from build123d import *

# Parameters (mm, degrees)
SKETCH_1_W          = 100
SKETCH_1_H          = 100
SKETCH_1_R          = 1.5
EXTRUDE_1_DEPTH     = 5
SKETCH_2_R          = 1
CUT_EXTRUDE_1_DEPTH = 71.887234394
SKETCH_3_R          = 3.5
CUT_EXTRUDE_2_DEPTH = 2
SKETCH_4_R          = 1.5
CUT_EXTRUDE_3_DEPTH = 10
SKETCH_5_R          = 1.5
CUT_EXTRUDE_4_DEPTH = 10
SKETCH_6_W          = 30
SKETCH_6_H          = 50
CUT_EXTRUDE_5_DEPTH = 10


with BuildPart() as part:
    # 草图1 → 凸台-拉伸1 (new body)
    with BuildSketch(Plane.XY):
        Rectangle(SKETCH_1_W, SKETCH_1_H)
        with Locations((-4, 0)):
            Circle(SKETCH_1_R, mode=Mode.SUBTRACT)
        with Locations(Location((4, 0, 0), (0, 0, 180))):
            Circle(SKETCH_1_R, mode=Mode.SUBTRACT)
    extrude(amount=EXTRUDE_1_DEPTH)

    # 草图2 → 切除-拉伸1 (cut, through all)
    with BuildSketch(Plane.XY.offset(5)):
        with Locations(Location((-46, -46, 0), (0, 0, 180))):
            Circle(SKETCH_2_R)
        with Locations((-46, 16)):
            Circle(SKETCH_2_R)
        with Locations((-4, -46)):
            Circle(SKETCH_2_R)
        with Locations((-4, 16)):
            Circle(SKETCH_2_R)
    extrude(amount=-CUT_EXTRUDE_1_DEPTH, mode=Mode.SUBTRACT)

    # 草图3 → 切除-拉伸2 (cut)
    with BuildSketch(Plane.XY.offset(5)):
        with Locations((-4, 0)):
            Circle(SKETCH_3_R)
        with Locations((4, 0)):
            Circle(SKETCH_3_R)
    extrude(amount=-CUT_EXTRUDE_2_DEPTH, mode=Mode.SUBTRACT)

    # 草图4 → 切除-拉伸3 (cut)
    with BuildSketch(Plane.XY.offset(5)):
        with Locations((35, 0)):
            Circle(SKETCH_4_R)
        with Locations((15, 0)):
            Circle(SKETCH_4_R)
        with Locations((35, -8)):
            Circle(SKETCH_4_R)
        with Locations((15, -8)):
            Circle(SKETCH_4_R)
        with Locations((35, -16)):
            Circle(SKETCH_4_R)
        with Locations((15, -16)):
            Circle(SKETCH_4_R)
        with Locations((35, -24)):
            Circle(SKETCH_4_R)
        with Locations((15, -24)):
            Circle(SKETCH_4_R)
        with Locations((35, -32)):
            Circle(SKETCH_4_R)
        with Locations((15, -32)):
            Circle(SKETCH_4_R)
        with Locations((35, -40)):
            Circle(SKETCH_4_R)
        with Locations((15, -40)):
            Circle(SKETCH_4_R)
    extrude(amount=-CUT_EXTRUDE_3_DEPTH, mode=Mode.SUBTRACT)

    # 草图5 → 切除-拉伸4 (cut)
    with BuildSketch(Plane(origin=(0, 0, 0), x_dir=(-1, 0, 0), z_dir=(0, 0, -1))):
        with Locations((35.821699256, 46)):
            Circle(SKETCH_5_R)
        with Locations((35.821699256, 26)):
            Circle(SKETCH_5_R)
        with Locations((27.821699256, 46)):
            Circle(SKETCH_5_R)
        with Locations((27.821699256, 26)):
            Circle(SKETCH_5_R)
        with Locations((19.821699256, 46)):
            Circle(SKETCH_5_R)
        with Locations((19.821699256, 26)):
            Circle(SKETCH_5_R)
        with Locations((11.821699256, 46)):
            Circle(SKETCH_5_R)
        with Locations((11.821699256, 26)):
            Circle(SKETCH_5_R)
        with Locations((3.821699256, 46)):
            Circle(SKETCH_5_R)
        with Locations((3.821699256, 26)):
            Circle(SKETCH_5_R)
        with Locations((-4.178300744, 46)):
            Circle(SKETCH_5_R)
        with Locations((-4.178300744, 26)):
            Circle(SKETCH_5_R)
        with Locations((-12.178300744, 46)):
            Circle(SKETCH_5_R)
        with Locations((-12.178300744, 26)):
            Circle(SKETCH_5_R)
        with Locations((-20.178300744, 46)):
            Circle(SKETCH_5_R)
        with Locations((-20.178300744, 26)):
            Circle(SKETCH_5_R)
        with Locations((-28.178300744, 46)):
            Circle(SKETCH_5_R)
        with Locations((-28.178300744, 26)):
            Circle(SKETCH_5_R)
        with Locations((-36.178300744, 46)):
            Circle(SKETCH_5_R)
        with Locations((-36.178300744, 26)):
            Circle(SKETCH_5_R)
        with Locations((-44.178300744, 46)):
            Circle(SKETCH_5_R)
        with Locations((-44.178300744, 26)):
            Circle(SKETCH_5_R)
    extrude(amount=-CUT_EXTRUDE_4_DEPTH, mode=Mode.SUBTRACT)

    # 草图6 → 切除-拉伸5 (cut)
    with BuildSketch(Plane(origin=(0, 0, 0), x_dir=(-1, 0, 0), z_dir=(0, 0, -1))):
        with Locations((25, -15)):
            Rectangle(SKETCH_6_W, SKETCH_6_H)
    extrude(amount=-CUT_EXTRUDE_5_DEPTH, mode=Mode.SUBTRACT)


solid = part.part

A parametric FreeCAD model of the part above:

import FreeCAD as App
import Part
import Sketcher

V = App.Vector
Q = App.Units.Quantity


def add_polygon(sketch, points):
    """Adds a closed chain of lines whose ends are joined by coincident constraints."""
    first, n = sketch.GeometryCount, len(points)
    for a, b in zip(points, points[1:] + points[:1]):
        sketch.addGeometry(Part.LineSegment(App.Vector(*a, 0), App.Vector(*b, 0)), False)
    for i in range(n):
        sketch.addConstraint(Sketcher.Constraint("Coincident", first + i, 2, first + (i + 1) % n, 1))

doc = App.newDocument("Part")
body = doc.addObject("PartDesign::Body", "Body")

# Sketch on XY plane
sketch1 = body.newObject("Sketcher::SketchObject", "Sketch")
sketch1.AttachmentSupport = (doc.getObject("XY_Plane"), [""])
sketch1.MapMode = "FlatFace"
add_polygon(sketch1, [(-50, 50), (-50, -50), (50, -50), (50, 50)])  # lines 0-3
sketch1.addGeometry(Part.Circle(V(-4, 0, 0), V(0, 0, 1), 1.5), False)  # 4
sketch1.addGeometry(Part.Circle(V(4, 0, 0), V(0, 0, 1), 1.5), False)  # 5
sketch1.addConstraint(Sketcher.Constraint("Vertical", 0))
sketch1.addConstraint(Sketcher.Constraint("Horizontal", 1))
sketch1.addConstraint(Sketcher.Constraint("Vertical", 2))
sketch1.addConstraint(Sketcher.Constraint("Horizontal", 3))
sketch1.addConstraint(Sketcher.Constraint("Equal", 4, 5))
sketch1.addConstraint(Sketcher.Constraint("Symmetric", 4, 3, 5, 3, -1, 1))
sketch1.addConstraint(Sketcher.Constraint("Symmetric", 0, 2, 2, 2, -1, 1))
sketch1.addConstraint(Sketcher.Constraint("PointOnObject", 4, 3, -1))
sketch1.addConstraint(Sketcher.Constraint("Equal", 3, 0))
sketch1.addConstraint(Sketcher.Constraint("Diameter", 4, Q("3 mm")))
sketch1.addConstraint(Sketcher.Constraint("DistanceX", 1, 1, 1, 2, Q("100 mm")))
sketch1.addConstraint(Sketcher.Constraint("DistanceX", 4, 3, -1, 1, Q("4 mm")))
pad1 = body.newObject("PartDesign::Pad", "Pad")
pad1.Profile = sketch1
pad1.Length = 5

# Sketch on XY plane
sketch2 = body.newObject("Sketcher::SketchObject", "Sketch001")
sketch2.AttachmentSupport = (doc.getObject("XY_Plane"), [""])
sketch2.MapMode = "FlatFace"
sketch2.AttachmentOffset = App.Placement(V(0, 0, 5), App.Rotation())
sketch2.addGeometry(Part.Circle(V(-46, -46, 0), V(0, 0, 1), 1), False)
sketch2.addGeometry(Part.Circle(V(-46, 16, 0), V(0, 0, 1), 1), False)
sketch2.addGeometry(Part.Circle(V(-4, -46, 0), V(0, 0, 1), 1), False)
sketch2.addGeometry(Part.Circle(V(-4, 16, 0), V(0, 0, 1), 1), False)
sketch2.addConstraint(Sketcher.Constraint("Equal", 0, 1))
sketch2.addConstraint(Sketcher.Constraint("Equal", 1, 2))
sketch2.addConstraint(Sketcher.Constraint("Equal", 2, 3))
sketch2.addConstraint(Sketcher.Constraint("Horizontal", 0, 3, 2, 3))
sketch2.addConstraint(Sketcher.Constraint("Horizontal", 1, 3, 3, 3))
sketch2.addConstraint(Sketcher.Constraint("Vertical", 0, 3, 1, 3))
sketch2.addConstraint(Sketcher.Constraint("Vertical", 2, 3, 3, 3))
sketch2.addConstraint(Sketcher.Constraint("Diameter", 0, Q("2 mm")))
sketch2.addConstraint(Sketcher.Constraint("DistanceX", 0, 3, -1, 1, Q("46 mm")))
sketch2.addConstraint(Sketcher.Constraint("DistanceY", 0, 3, -1, 1, Q("46 mm")))
sketch2.addConstraint(Sketcher.Constraint("DistanceY", -1, 1, 1, 3, Q("16 mm")))
sketch2.addConstraint(Sketcher.Constraint("DistanceX", 2, 3, -1, 1, Q("4 mm")))
pocket1 = body.newObject("PartDesign::Pocket", "Pocket")
pocket1.Profile = sketch2
pocket1.Type = "ThroughAll"

# Sketch on XY plane
sketch3 = body.newObject("Sketcher::SketchObject", "Sketch002")
sketch3.AttachmentSupport = (doc.getObject("XY_Plane"), [""])
sketch3.MapMode = "FlatFace"
sketch3.AttachmentOffset = App.Placement(V(0, 0, 5), App.Rotation())
sketch3.addGeometry(Part.Circle(V(-4, 0, 0), V(0, 0, 1), 3.5), False)
sketch3.addGeometry(Part.Circle(V(4, 0, 0), V(0, 0, 1), 3.5), False)
sketch3.addConstraint(Sketcher.Constraint("Equal", 0, 1))
sketch3.addConstraint(Sketcher.Constraint("Symmetric", 0, 3, 1, 3, -1, 1))
sketch3.addConstraint(Sketcher.Constraint("PointOnObject", 0, 3, -1))
sketch3.addConstraint(Sketcher.Constraint("Diameter", 0, Q("7 mm")))
sketch3.addConstraint(Sketcher.Constraint("DistanceX", 0, 3, -1, 1, Q("4 mm")))
pocket2 = body.newObject("PartDesign::Pocket", "Pocket001")
pocket2.Profile = sketch3
pocket2.Length = 2

# Sketch on XY plane
sketch4 = body.newObject("Sketcher::SketchObject", "Sketch003")
sketch4.AttachmentSupport = (doc.getObject("XY_Plane"), [""])
sketch4.MapMode = "FlatFace"
sketch4.AttachmentOffset = App.Placement(V(0, 0, 5), App.Rotation())
sketch4.addGeometry(Part.Circle(V(35, 0, 0), V(0, 0, 1), 1.5), False)
sketch4.addGeometry(Part.Circle(V(15, 0, 0), V(0, 0, 1), 1.5), False)
sketch4.addGeometry(Part.Circle(V(35, -8, 0), V(0, 0, 1), 1.5), False)
sketch4.addGeometry(Part.Circle(V(15, -8, 0), V(0, 0, 1), 1.5), False)
sketch4.addGeometry(Part.Circle(V(35, -16, 0), V(0, 0, 1), 1.5), False)
sketch4.addGeometry(Part.Circle(V(15, -16, 0), V(0, 0, 1), 1.5), False)
sketch4.addGeometry(Part.Circle(V(35, -24, 0), V(0, 0, 1), 1.5), False)
sketch4.addGeometry(Part.Circle(V(15, -24, 0), V(0, 0, 1), 1.5), False)
sketch4.addGeometry(Part.Circle(V(35, -32, 0), V(0, 0, 1), 1.5), False)
sketch4.addGeometry(Part.Circle(V(15, -32, 0), V(0, 0, 1), 1.5), False)
sketch4.addGeometry(Part.Circle(V(35, -40, 0), V(0, 0, 1), 1.5), False)
sketch4.addGeometry(Part.Circle(V(15, -40, 0), V(0, 0, 1), 1.5), False)
sketch4.addConstraint(Sketcher.Constraint("Equal", 0, 1))
sketch4.addConstraint(Sketcher.Constraint("Equal", 1, 2))
sketch4.addConstraint(Sketcher.Constraint("Equal", 2, 3))
sketch4.addConstraint(Sketcher.Constraint("Equal", 3, 4))
sketch4.addConstraint(Sketcher.Constraint("Equal", 4, 5))
sketch4.addConstraint(Sketcher.Constraint("Equal", 5, 6))
sketch4.addConstraint(Sketcher.Constraint("Equal", 6, 7))
sketch4.addConstraint(Sketcher.Constraint("Equal", 7, 8))
sketch4.addConstraint(Sketcher.Constraint("Equal", 8, 9))
sketch4.addConstraint(Sketcher.Constraint("Equal", 9, 10))
sketch4.addConstraint(Sketcher.Constraint("Equal", 10, 11))
sketch4.addConstraint(Sketcher.Constraint("PointOnObject", 0, 3, -1))
sketch4.addConstraint(Sketcher.Constraint("PointOnObject", 1, 3, -1))
sketch4.addConstraint(Sketcher.Constraint("Horizontal", 2, 3, 3, 3))
sketch4.addConstraint(Sketcher.Constraint("Horizontal", 4, 3, 5, 3))
sketch4.addConstraint(Sketcher.Constraint("Horizontal", 6, 3, 7, 3))
sketch4.addConstraint(Sketcher.Constraint("Horizontal", 8, 3, 9, 3))
sketch4.addConstraint(Sketcher.Constraint("Horizontal", 10, 3, 11, 3))
sketch4.addConstraint(Sketcher.Constraint("Vertical", 0, 3, 2, 3))
sketch4.addConstraint(Sketcher.Constraint("Vertical", 1, 3, 3, 3))
sketch4.addConstraint(Sketcher.Constraint("Vertical", 2, 3, 4, 3))
sketch4.addConstraint(Sketcher.Constraint("Vertical", 3, 3, 5, 3))
sketch4.addConstraint(Sketcher.Constraint("Vertical", 4, 3, 6, 3))
sketch4.addConstraint(Sketcher.Constraint("Vertical", 5, 3, 7, 3))
sketch4.addConstraint(Sketcher.Constraint("Vertical", 6, 3, 8, 3))
sketch4.addConstraint(Sketcher.Constraint("Vertical", 7, 3, 9, 3))
sketch4.addConstraint(Sketcher.Constraint("Vertical", 8, 3, 10, 3))
sketch4.addConstraint(Sketcher.Constraint("Vertical", 9, 3, 11, 3))
sketch4.addConstraint(Sketcher.Constraint("Diameter", 0, Q("3 mm")))
sketch4.addConstraint(Sketcher.Constraint("DistanceX", -1, 1, 0, 3, Q("35 mm")))
sketch4.addConstraint(Sketcher.Constraint("DistanceX", -1, 1, 1, 3, Q("15 mm")))
sketch4.addConstraint(Sketcher.Constraint("DistanceY", 2, 3, -1, 1, Q("8 mm")))
sketch4.addConstraint(Sketcher.Constraint("DistanceY", 4, 3, -1, 1, Q("16 mm")))
sketch4.addConstraint(Sketcher.Constraint("DistanceY", 6, 3, -1, 1, Q("24 mm")))
sketch4.addConstraint(Sketcher.Constraint("DistanceY", 8, 3, -1, 1, Q("32 mm")))
sketch4.addConstraint(Sketcher.Constraint("DistanceY", 10, 3, -1, 1, Q("40 mm")))
pocket3 = body.newObject("PartDesign::Pocket", "Pocket002")
pocket3.Profile = sketch4
pocket3.Length = 10

# Sketch on XY plane
sketch5 = body.newObject("Sketcher::SketchObject", "Sketch004")
sketch5.AttachmentSupport = (doc.getObject("XY_Plane"), [""])
sketch5.MapMode = "FlatFace"
sketch5.addGeometry(Part.Circle(V(-35.8, 46, 0), V(0, 0, 1), 1.5), False)
sketch5.addGeometry(Part.Circle(V(-35.8, 26, 0), V(0, 0, 1), 1.5), False)
sketch5.addGeometry(Part.Circle(V(-27.8, 46, 0), V(0, 0, 1), 1.5), False)
sketch5.addGeometry(Part.Circle(V(-27.8, 26, 0), V(0, 0, 1), 1.5), False)
sketch5.addGeometry(Part.Circle(V(-19.8, 46, 0), V(0, 0, 1), 1.5), False)
sketch5.addGeometry(Part.Circle(V(-19.8, 26, 0), V(0, 0, 1), 1.5), False)
sketch5.addGeometry(Part.Circle(V(-11.8, 46, 0), V(0, 0, 1), 1.5), False)
sketch5.addGeometry(Part.Circle(V(-11.8, 26, 0), V(0, 0, 1), 1.5), False)
sketch5.addGeometry(Part.Circle(V(-3.8, 46, 0), V(0, 0, 1), 1.5), False)
sketch5.addGeometry(Part.Circle(V(-3.8, 26, 0), V(0, 0, 1), 1.5), False)
sketch5.addGeometry(Part.Circle(V(4.2, 46, 0), V(0, 0, 1), 1.5), False)
sketch5.addGeometry(Part.Circle(V(4.2, 26, 0), V(0, 0, 1), 1.5), False)
sketch5.addGeometry(Part.Circle(V(12.2, 46, 0), V(0, 0, 1), 1.5), False)
sketch5.addGeometry(Part.Circle(V(12.2, 26, 0), V(0, 0, 1), 1.5), False)
sketch5.addGeometry(Part.Circle(V(20.2, 46, 0), V(0, 0, 1), 1.5), False)
sketch5.addGeometry(Part.Circle(V(20.2, 26, 0), V(0, 0, 1), 1.5), False)
sketch5.addGeometry(Part.Circle(V(28.2, 46, 0), V(0, 0, 1), 1.5), False)
sketch5.addGeometry(Part.Circle(V(28.2, 26, 0), V(0, 0, 1), 1.5), False)
sketch5.addGeometry(Part.Circle(V(36.2, 46, 0), V(0, 0, 1), 1.5), False)
sketch5.addGeometry(Part.Circle(V(36.2, 26, 0), V(0, 0, 1), 1.5), False)
sketch5.addGeometry(Part.Circle(V(44.2, 46, 0), V(0, 0, 1), 1.5), False)
sketch5.addGeometry(Part.Circle(V(44.2, 26, 0), V(0, 0, 1), 1.5), False)
sketch5.addConstraint(Sketcher.Constraint("Equal", 0, 1))
sketch5.addConstraint(Sketcher.Constraint("Equal", 1, 2))
sketch5.addConstraint(Sketcher.Constraint("Equal", 2, 3))
sketch5.addConstraint(Sketcher.Constraint("Equal", 3, 4))
sketch5.addConstraint(Sketcher.Constraint("Equal", 4, 5))
sketch5.addConstraint(Sketcher.Constraint("Equal", 5, 6))
sketch5.addConstraint(Sketcher.Constraint("Equal", 6, 7))
sketch5.addConstraint(Sketcher.Constraint("Equal", 7, 8))
sketch5.addConstraint(Sketcher.Constraint("Equal", 8, 9))
sketch5.addConstraint(Sketcher.Constraint("Equal", 9, 10))
sketch5.addConstraint(Sketcher.Constraint("Equal", 10, 11))
sketch5.addConstraint(Sketcher.Constraint("Equal", 11, 12))
sketch5.addConstraint(Sketcher.Constraint("Equal", 12, 13))
sketch5.addConstraint(Sketcher.Constraint("Equal", 13, 14))
sketch5.addConstraint(Sketcher.Constraint("Equal", 14, 15))
sketch5.addConstraint(Sketcher.Constraint("Equal", 15, 16))
sketch5.addConstraint(Sketcher.Constraint("Equal", 16, 17))
sketch5.addConstraint(Sketcher.Constraint("Equal", 17, 18))
sketch5.addConstraint(Sketcher.Constraint("Equal", 18, 19))
sketch5.addConstraint(Sketcher.Constraint("Equal", 19, 20))
sketch5.addConstraint(Sketcher.Constraint("Equal", 20, 21))
sketch5.addConstraint(Sketcher.Constraint("Horizontal", 0, 3, 2, 3))
sketch5.addConstraint(Sketcher.Constraint("Horizontal", 1, 3, 3, 3))
sketch5.addConstraint(Sketcher.Constraint("Horizontal", 2, 3, 4, 3))
sketch5.addConstraint(Sketcher.Constraint("Horizontal", 3, 3, 5, 3))
sketch5.addConstraint(Sketcher.Constraint("Horizontal", 4, 3, 6, 3))
sketch5.addConstraint(Sketcher.Constraint("Horizontal", 5, 3, 7, 3))
sketch5.addConstraint(Sketcher.Constraint("Horizontal", 6, 3, 8, 3))
sketch5.addConstraint(Sketcher.Constraint("Horizontal", 7, 3, 9, 3))
sketch5.addConstraint(Sketcher.Constraint("Horizontal", 8, 3, 10, 3))
sketch5.addConstraint(Sketcher.Constraint("Horizontal", 9, 3, 11, 3))
sketch5.addConstraint(Sketcher.Constraint("Horizontal", 10, 3, 12, 3))
sketch5.addConstraint(Sketcher.Constraint("Horizontal", 11, 3, 13, 3))
sketch5.addConstraint(Sketcher.Constraint("Horizontal", 12, 3, 14, 3))
sketch5.addConstraint(Sketcher.Constraint("Horizontal", 13, 3, 15, 3))
sketch5.addConstraint(Sketcher.Constraint("Horizontal", 14, 3, 16, 3))
sketch5.addConstraint(Sketcher.Constraint("Horizontal", 15, 3, 17, 3))
sketch5.addConstraint(Sketcher.Constraint("Horizontal", 16, 3, 18, 3))
sketch5.addConstraint(Sketcher.Constraint("Horizontal", 17, 3, 19, 3))
sketch5.addConstraint(Sketcher.Constraint("Horizontal", 18, 3, 20, 3))
sketch5.addConstraint(Sketcher.Constraint("Horizontal", 19, 3, 21, 3))
sketch5.addConstraint(Sketcher.Constraint("Vertical", 0, 3, 1, 3))
sketch5.addConstraint(Sketcher.Constraint("Vertical", 2, 3, 3, 3))
sketch5.addConstraint(Sketcher.Constraint("Vertical", 4, 3, 5, 3))
sketch5.addConstraint(Sketcher.Constraint("Vertical", 6, 3, 7, 3))
sketch5.addConstraint(Sketcher.Constraint("Vertical", 8, 3, 9, 3))
sketch5.addConstraint(Sketcher.Constraint("Vertical", 10, 3, 11, 3))
sketch5.addConstraint(Sketcher.Constraint("Vertical", 12, 3, 13, 3))
sketch5.addConstraint(Sketcher.Constraint("Vertical", 14, 3, 15, 3))
sketch5.addConstraint(Sketcher.Constraint("Vertical", 16, 3, 17, 3))
sketch5.addConstraint(Sketcher.Constraint("Vertical", 18, 3, 19, 3))
sketch5.addConstraint(Sketcher.Constraint("Vertical", 20, 3, 21, 3))
sketch5.addConstraint(Sketcher.Constraint("Diameter", 0, Q("3 mm")))
sketch5.addConstraint(Sketcher.Constraint("DistanceY", -1, 1, 0, 3, Q("46 mm")))
sketch5.addConstraint(Sketcher.Constraint("DistanceY", -1, 1, 1, 3, Q("26 mm")))
sketch5.addConstraint(Sketcher.Constraint("DistanceX", 0, 3, 2, 3, Q("8 mm")))
sketch5.addConstraint(Sketcher.Constraint("DistanceX", 2, 3, 4, 3, Q("8 mm")))
sketch5.addConstraint(Sketcher.Constraint("DistanceX", 4, 3, 6, 3, Q("8 mm")))
sketch5.addConstraint(Sketcher.Constraint("DistanceX", 6, 3, 8, 3, Q("8 mm")))
sketch5.addConstraint(Sketcher.Constraint("DistanceX", 8, 3, 10, 3, Q("8 mm")))
sketch5.addConstraint(Sketcher.Constraint("DistanceX", 10, 3, 12, 3, Q("8 mm")))
sketch5.addConstraint(Sketcher.Constraint("DistanceX", 12, 3, 14, 3, Q("8 mm")))
sketch5.addConstraint(Sketcher.Constraint("DistanceX", 14, 3, 16, 3, Q("8 mm")))
sketch5.addConstraint(Sketcher.Constraint("DistanceX", 16, 3, 18, 3, Q("8 mm")))
sketch5.addConstraint(Sketcher.Constraint("DistanceX", 18, 3, 20, 3, Q("8 mm")))
sketch5.addConstraint(Sketcher.Constraint("DistanceX", 0, 3, -1, 1, Q("35.821699 mm")))
pocket4 = body.newObject("PartDesign::Pocket", "Pocket003")
pocket4.Profile = sketch5
pocket4.Length = 10
pocket4.Reversed = True

# Sketch on XY plane
sketch6 = body.newObject("Sketcher::SketchObject", "Sketch005")
sketch6.AttachmentSupport = (doc.getObject("XY_Plane"), [""])
sketch6.MapMode = "FlatFace"
add_polygon(sketch6, [(-10, 10), (-10, -40), (-40, -40), (-40, 10)])  # lines 0-3
sketch6.addConstraint(Sketcher.Constraint("Vertical", 0))
sketch6.addConstraint(Sketcher.Constraint("Horizontal", 1))
sketch6.addConstraint(Sketcher.Constraint("Vertical", 2))
sketch6.addConstraint(Sketcher.Constraint("Horizontal", 3))
sketch6.addConstraint(Sketcher.Constraint("DistanceX", 1, 2, 1, 1, Q("30 mm")))
sketch6.addConstraint(Sketcher.Constraint("DistanceY", 0, 2, 0, 1, Q("50 mm")))
sketch6.addConstraint(Sketcher.Constraint("DistanceX", 0, 2, -1, 1, Q("10 mm")))
sketch6.addConstraint(Sketcher.Constraint("DistanceY", 0, 2, -1, 1, Q("40 mm")))
pocket5 = body.newObject("PartDesign::Pocket", "Pocket004")
pocket5.Profile = sketch6
pocket5.Length = 10
pocket5.Reversed = True

doc.recompute()
